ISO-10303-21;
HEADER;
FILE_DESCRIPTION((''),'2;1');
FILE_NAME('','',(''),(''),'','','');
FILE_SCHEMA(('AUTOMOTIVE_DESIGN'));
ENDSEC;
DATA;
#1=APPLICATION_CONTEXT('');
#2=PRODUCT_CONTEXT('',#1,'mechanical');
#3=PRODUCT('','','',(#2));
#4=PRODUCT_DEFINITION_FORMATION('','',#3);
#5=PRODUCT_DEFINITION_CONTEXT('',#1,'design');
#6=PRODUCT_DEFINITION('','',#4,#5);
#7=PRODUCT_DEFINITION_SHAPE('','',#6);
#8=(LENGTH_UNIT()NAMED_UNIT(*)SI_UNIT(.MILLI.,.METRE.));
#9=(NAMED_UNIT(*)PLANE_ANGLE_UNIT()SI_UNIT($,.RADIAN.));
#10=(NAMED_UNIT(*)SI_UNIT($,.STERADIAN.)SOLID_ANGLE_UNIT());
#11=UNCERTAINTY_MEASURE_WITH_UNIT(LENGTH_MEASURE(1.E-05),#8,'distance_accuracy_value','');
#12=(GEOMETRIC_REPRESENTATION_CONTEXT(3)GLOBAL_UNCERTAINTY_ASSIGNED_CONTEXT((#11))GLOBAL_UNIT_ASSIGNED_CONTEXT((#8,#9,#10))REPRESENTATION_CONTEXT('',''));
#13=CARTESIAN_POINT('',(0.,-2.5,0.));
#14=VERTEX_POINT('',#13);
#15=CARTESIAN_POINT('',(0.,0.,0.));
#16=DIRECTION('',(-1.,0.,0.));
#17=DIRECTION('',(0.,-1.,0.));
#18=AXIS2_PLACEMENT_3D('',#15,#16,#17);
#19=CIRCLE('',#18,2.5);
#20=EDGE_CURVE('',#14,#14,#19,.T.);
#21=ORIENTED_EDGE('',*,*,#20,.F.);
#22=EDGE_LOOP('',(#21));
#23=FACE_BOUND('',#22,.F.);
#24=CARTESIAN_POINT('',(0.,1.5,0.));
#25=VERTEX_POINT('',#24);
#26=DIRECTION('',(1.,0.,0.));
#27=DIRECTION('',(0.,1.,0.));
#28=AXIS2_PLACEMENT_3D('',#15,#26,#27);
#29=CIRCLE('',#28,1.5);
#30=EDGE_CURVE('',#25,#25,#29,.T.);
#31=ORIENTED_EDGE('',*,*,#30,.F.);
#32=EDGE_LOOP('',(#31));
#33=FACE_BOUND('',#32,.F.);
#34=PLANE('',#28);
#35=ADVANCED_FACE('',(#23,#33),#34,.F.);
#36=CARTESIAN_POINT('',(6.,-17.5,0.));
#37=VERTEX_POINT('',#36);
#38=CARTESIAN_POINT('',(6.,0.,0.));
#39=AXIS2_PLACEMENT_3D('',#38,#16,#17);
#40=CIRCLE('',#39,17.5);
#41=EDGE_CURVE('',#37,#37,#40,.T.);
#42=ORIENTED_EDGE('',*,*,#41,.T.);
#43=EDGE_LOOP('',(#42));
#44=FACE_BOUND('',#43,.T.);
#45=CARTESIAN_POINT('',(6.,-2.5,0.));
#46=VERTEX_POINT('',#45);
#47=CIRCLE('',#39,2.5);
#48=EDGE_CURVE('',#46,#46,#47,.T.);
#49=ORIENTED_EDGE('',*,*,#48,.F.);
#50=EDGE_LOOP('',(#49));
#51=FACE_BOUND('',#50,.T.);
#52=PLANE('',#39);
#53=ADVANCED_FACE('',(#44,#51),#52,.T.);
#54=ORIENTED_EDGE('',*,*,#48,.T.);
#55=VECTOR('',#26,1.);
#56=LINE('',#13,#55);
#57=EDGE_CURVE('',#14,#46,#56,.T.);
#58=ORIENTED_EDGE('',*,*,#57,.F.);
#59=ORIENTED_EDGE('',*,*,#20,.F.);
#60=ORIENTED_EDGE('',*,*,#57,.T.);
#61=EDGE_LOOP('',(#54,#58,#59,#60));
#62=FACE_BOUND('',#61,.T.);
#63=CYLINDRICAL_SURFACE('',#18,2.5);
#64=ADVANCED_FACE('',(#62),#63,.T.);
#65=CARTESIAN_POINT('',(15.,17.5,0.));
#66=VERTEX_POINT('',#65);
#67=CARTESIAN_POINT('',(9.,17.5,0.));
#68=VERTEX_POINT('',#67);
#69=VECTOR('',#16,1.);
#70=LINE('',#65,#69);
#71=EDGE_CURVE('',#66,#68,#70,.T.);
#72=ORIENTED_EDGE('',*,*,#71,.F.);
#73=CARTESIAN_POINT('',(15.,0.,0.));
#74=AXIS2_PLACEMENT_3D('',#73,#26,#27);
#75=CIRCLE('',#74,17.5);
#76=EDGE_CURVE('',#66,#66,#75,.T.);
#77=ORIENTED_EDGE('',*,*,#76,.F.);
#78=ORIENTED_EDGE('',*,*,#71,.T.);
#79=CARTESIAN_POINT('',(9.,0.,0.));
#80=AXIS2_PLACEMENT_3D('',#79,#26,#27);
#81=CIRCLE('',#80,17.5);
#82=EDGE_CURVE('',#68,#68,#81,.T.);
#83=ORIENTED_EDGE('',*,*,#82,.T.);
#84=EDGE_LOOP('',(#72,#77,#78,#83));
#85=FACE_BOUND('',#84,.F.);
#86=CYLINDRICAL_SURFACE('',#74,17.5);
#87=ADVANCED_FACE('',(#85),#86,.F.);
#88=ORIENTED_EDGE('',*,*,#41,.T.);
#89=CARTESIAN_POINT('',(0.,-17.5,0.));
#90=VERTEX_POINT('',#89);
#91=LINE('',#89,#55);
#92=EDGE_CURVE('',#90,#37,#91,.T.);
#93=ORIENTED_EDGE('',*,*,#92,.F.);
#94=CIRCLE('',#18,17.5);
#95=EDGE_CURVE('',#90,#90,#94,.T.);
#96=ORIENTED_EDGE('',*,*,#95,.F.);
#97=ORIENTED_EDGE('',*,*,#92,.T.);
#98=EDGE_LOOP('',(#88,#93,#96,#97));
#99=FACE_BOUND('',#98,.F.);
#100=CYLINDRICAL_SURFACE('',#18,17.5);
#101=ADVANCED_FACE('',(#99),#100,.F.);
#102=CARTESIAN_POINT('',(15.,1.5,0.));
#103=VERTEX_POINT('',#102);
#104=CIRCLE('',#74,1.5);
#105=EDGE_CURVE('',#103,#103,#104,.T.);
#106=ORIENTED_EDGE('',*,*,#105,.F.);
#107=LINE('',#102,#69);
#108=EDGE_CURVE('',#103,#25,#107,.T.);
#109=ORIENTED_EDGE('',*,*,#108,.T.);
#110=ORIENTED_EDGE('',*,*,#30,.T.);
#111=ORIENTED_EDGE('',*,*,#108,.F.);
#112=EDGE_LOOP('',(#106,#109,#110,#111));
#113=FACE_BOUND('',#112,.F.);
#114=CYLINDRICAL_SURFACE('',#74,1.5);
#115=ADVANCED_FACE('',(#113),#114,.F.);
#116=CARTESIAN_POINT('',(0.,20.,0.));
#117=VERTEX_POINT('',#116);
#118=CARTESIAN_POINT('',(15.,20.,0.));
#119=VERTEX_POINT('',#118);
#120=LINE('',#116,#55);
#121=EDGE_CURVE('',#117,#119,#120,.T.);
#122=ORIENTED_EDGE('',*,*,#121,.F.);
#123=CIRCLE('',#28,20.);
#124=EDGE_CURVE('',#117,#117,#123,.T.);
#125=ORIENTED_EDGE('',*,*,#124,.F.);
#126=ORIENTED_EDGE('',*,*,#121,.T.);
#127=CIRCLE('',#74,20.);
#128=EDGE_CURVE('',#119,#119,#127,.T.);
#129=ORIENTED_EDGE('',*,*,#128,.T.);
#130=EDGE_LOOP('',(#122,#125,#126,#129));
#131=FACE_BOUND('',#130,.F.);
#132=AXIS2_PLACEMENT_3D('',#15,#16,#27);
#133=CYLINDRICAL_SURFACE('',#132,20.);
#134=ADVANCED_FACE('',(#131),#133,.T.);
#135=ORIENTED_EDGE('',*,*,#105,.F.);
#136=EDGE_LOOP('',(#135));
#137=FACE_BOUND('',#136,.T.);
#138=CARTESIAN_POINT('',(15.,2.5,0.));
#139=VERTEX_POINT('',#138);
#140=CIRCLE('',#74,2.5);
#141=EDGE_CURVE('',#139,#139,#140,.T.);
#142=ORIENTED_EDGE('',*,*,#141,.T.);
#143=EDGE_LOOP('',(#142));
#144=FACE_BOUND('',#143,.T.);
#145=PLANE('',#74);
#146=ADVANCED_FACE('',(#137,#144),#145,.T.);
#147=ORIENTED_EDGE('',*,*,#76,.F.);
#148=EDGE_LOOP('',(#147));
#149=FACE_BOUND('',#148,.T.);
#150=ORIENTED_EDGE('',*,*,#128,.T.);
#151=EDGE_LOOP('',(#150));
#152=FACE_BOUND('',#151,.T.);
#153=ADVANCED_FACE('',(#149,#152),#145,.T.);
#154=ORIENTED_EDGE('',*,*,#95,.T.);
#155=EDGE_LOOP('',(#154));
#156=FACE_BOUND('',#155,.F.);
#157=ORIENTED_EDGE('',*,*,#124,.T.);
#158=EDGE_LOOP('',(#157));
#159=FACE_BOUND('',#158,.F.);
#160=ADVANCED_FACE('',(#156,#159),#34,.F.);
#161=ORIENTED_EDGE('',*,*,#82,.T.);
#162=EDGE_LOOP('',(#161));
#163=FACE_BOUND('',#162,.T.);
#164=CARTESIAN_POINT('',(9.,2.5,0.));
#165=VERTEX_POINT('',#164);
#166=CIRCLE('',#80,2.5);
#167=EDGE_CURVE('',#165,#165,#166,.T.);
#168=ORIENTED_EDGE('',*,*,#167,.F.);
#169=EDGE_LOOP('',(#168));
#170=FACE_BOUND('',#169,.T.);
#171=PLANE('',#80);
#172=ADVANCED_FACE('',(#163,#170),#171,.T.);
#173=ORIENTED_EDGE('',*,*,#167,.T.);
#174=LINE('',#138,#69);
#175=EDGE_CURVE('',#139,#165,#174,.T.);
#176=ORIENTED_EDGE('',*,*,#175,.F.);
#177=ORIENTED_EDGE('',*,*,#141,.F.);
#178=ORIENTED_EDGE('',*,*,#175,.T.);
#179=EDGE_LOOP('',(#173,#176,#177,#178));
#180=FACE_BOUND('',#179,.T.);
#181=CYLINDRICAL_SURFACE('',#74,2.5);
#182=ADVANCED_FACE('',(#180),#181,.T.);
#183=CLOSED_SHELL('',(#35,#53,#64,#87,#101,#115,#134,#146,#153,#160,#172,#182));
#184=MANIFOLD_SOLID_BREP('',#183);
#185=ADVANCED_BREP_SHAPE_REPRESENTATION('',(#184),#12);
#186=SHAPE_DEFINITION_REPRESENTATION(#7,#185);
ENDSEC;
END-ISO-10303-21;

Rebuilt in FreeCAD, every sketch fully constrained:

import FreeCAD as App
import Part
import Sketcher
from FreeCAD import Vector
Q = App.Units.Quantity

doc = App.newDocument("Part")
body = doc.addObject("PartDesign::Body", "Body")

sketch1 = doc.addObject("Sketcher::SketchObject", "Sketch")
body.addObject(sketch1)
sketch1.AttachmentSupport = (doc.YZ_Plane, [""])
sketch1.MapMode = "FlatFace"
sketch1.addGeometry(Part.Circle(Vector(0, 0, 0), Vector(0, 0, 1), 20), False)
sketch1.addConstraint([
    Sketcher.Constraint("Coincident", 0, 3, -1, 1),
    Sketcher.Constraint("Diameter", 0, Q("40 mm")),
])
pad1 = doc.addObject("PartDesign::Pad", "Pad")
body.addObject(pad1)
pad1.Profile = sketch1
pad1.Length = 15

sketch2 = doc.addObject("Sketcher::SketchObject", "Sketch001")
body.addObject(sketch2)
sketch2.AttachmentSupport = (doc.YZ_Plane, [""])
sketch2.MapMode = "FlatFace"
sketch2.AttachmentOffset = App.Placement(Vector(0, 0, 15), App.Rotation())
sketch2.addGeometry([
    Part.Circle(Vector(0, 0, 0), Vector(0, 0, 1), 17.5),
    Part.Circle(Vector(0, 0, 0), Vector(0, 0, 1), 2.5),
], False)
sketch2.addConstraint([
    Sketcher.Constraint("Coincident", 0, 3, -1, 1),
    Sketcher.Constraint("Coincident", 1, 3, -1, 1),
    Sketcher.Constraint("Diameter", 0, Q("35 mm")),
    Sketcher.Constraint("Diameter", 1, Q("5 mm")),
])
pocket1 = doc.addObject("PartDesign::Pocket", "Pocket")
body.addObject(pocket1)
pocket1.Profile = sketch2
pocket1.Length = 6

sketch3 = doc.addObject("Sketcher::SketchObject", "Sketch002")
body.addObject(sketch3)
sketch3.AttachmentSupport = (doc.YZ_Plane, [""])
sketch3.MapMode = "FlatFace"
sketch3.AttachmentOffset = App.Placement(Vector(0, 0, 15), App.Rotation())
sketch3.addGeometry(Part.Circle(Vector(0, 0, 0), Vector(0, 0, 1), 1.5), False)
sketch3.addConstraint([
    Sketcher.Constraint("Coincident", 0, 3, -1, 1),
    Sketcher.Constraint("Diameter", 0, Q("3 mm")),
])
pocket2 = doc.addObject("PartDesign::Pocket", "Pocket001")
body.addObject(pocket2)
pocket2.Profile = sketch3
pocket2.Length = 25

sketch4 = doc.addObject("Sketcher::SketchObject", "Sketch003")
body.addObject(sketch4)
sketch4.AttachmentSupport = (doc.YZ_Plane, [""])
sketch4.MapMode = "FlatFace"
sketch4.addGeometry([
    Part.Circle(Vector(0, 0, 0), Vector(0, 0, 1), 17.5),
    Part.Circle(Vector(0, 0, 0), Vector(0, 0, 1), 2.5),
], False)
sketch4.addConstraint([
    Sketcher.Constraint("Coincident", 0, 3, -1, 1),
    Sketcher.Constraint("Coincident", 1, 3, -1, 1),
    Sketcher.Constraint("Diameter", 0, Q("35 mm")),
    Sketcher.Constraint("Diameter", 1, Q("5 mm")),
])
pocket3 = doc.addObject("PartDesign::Pocket", "Pocket002")
body.addObject(pocket3)
pocket3.Profile = sketch4
pocket3.Length = 6
pocket3.Reversed = True

doc.recompute()
